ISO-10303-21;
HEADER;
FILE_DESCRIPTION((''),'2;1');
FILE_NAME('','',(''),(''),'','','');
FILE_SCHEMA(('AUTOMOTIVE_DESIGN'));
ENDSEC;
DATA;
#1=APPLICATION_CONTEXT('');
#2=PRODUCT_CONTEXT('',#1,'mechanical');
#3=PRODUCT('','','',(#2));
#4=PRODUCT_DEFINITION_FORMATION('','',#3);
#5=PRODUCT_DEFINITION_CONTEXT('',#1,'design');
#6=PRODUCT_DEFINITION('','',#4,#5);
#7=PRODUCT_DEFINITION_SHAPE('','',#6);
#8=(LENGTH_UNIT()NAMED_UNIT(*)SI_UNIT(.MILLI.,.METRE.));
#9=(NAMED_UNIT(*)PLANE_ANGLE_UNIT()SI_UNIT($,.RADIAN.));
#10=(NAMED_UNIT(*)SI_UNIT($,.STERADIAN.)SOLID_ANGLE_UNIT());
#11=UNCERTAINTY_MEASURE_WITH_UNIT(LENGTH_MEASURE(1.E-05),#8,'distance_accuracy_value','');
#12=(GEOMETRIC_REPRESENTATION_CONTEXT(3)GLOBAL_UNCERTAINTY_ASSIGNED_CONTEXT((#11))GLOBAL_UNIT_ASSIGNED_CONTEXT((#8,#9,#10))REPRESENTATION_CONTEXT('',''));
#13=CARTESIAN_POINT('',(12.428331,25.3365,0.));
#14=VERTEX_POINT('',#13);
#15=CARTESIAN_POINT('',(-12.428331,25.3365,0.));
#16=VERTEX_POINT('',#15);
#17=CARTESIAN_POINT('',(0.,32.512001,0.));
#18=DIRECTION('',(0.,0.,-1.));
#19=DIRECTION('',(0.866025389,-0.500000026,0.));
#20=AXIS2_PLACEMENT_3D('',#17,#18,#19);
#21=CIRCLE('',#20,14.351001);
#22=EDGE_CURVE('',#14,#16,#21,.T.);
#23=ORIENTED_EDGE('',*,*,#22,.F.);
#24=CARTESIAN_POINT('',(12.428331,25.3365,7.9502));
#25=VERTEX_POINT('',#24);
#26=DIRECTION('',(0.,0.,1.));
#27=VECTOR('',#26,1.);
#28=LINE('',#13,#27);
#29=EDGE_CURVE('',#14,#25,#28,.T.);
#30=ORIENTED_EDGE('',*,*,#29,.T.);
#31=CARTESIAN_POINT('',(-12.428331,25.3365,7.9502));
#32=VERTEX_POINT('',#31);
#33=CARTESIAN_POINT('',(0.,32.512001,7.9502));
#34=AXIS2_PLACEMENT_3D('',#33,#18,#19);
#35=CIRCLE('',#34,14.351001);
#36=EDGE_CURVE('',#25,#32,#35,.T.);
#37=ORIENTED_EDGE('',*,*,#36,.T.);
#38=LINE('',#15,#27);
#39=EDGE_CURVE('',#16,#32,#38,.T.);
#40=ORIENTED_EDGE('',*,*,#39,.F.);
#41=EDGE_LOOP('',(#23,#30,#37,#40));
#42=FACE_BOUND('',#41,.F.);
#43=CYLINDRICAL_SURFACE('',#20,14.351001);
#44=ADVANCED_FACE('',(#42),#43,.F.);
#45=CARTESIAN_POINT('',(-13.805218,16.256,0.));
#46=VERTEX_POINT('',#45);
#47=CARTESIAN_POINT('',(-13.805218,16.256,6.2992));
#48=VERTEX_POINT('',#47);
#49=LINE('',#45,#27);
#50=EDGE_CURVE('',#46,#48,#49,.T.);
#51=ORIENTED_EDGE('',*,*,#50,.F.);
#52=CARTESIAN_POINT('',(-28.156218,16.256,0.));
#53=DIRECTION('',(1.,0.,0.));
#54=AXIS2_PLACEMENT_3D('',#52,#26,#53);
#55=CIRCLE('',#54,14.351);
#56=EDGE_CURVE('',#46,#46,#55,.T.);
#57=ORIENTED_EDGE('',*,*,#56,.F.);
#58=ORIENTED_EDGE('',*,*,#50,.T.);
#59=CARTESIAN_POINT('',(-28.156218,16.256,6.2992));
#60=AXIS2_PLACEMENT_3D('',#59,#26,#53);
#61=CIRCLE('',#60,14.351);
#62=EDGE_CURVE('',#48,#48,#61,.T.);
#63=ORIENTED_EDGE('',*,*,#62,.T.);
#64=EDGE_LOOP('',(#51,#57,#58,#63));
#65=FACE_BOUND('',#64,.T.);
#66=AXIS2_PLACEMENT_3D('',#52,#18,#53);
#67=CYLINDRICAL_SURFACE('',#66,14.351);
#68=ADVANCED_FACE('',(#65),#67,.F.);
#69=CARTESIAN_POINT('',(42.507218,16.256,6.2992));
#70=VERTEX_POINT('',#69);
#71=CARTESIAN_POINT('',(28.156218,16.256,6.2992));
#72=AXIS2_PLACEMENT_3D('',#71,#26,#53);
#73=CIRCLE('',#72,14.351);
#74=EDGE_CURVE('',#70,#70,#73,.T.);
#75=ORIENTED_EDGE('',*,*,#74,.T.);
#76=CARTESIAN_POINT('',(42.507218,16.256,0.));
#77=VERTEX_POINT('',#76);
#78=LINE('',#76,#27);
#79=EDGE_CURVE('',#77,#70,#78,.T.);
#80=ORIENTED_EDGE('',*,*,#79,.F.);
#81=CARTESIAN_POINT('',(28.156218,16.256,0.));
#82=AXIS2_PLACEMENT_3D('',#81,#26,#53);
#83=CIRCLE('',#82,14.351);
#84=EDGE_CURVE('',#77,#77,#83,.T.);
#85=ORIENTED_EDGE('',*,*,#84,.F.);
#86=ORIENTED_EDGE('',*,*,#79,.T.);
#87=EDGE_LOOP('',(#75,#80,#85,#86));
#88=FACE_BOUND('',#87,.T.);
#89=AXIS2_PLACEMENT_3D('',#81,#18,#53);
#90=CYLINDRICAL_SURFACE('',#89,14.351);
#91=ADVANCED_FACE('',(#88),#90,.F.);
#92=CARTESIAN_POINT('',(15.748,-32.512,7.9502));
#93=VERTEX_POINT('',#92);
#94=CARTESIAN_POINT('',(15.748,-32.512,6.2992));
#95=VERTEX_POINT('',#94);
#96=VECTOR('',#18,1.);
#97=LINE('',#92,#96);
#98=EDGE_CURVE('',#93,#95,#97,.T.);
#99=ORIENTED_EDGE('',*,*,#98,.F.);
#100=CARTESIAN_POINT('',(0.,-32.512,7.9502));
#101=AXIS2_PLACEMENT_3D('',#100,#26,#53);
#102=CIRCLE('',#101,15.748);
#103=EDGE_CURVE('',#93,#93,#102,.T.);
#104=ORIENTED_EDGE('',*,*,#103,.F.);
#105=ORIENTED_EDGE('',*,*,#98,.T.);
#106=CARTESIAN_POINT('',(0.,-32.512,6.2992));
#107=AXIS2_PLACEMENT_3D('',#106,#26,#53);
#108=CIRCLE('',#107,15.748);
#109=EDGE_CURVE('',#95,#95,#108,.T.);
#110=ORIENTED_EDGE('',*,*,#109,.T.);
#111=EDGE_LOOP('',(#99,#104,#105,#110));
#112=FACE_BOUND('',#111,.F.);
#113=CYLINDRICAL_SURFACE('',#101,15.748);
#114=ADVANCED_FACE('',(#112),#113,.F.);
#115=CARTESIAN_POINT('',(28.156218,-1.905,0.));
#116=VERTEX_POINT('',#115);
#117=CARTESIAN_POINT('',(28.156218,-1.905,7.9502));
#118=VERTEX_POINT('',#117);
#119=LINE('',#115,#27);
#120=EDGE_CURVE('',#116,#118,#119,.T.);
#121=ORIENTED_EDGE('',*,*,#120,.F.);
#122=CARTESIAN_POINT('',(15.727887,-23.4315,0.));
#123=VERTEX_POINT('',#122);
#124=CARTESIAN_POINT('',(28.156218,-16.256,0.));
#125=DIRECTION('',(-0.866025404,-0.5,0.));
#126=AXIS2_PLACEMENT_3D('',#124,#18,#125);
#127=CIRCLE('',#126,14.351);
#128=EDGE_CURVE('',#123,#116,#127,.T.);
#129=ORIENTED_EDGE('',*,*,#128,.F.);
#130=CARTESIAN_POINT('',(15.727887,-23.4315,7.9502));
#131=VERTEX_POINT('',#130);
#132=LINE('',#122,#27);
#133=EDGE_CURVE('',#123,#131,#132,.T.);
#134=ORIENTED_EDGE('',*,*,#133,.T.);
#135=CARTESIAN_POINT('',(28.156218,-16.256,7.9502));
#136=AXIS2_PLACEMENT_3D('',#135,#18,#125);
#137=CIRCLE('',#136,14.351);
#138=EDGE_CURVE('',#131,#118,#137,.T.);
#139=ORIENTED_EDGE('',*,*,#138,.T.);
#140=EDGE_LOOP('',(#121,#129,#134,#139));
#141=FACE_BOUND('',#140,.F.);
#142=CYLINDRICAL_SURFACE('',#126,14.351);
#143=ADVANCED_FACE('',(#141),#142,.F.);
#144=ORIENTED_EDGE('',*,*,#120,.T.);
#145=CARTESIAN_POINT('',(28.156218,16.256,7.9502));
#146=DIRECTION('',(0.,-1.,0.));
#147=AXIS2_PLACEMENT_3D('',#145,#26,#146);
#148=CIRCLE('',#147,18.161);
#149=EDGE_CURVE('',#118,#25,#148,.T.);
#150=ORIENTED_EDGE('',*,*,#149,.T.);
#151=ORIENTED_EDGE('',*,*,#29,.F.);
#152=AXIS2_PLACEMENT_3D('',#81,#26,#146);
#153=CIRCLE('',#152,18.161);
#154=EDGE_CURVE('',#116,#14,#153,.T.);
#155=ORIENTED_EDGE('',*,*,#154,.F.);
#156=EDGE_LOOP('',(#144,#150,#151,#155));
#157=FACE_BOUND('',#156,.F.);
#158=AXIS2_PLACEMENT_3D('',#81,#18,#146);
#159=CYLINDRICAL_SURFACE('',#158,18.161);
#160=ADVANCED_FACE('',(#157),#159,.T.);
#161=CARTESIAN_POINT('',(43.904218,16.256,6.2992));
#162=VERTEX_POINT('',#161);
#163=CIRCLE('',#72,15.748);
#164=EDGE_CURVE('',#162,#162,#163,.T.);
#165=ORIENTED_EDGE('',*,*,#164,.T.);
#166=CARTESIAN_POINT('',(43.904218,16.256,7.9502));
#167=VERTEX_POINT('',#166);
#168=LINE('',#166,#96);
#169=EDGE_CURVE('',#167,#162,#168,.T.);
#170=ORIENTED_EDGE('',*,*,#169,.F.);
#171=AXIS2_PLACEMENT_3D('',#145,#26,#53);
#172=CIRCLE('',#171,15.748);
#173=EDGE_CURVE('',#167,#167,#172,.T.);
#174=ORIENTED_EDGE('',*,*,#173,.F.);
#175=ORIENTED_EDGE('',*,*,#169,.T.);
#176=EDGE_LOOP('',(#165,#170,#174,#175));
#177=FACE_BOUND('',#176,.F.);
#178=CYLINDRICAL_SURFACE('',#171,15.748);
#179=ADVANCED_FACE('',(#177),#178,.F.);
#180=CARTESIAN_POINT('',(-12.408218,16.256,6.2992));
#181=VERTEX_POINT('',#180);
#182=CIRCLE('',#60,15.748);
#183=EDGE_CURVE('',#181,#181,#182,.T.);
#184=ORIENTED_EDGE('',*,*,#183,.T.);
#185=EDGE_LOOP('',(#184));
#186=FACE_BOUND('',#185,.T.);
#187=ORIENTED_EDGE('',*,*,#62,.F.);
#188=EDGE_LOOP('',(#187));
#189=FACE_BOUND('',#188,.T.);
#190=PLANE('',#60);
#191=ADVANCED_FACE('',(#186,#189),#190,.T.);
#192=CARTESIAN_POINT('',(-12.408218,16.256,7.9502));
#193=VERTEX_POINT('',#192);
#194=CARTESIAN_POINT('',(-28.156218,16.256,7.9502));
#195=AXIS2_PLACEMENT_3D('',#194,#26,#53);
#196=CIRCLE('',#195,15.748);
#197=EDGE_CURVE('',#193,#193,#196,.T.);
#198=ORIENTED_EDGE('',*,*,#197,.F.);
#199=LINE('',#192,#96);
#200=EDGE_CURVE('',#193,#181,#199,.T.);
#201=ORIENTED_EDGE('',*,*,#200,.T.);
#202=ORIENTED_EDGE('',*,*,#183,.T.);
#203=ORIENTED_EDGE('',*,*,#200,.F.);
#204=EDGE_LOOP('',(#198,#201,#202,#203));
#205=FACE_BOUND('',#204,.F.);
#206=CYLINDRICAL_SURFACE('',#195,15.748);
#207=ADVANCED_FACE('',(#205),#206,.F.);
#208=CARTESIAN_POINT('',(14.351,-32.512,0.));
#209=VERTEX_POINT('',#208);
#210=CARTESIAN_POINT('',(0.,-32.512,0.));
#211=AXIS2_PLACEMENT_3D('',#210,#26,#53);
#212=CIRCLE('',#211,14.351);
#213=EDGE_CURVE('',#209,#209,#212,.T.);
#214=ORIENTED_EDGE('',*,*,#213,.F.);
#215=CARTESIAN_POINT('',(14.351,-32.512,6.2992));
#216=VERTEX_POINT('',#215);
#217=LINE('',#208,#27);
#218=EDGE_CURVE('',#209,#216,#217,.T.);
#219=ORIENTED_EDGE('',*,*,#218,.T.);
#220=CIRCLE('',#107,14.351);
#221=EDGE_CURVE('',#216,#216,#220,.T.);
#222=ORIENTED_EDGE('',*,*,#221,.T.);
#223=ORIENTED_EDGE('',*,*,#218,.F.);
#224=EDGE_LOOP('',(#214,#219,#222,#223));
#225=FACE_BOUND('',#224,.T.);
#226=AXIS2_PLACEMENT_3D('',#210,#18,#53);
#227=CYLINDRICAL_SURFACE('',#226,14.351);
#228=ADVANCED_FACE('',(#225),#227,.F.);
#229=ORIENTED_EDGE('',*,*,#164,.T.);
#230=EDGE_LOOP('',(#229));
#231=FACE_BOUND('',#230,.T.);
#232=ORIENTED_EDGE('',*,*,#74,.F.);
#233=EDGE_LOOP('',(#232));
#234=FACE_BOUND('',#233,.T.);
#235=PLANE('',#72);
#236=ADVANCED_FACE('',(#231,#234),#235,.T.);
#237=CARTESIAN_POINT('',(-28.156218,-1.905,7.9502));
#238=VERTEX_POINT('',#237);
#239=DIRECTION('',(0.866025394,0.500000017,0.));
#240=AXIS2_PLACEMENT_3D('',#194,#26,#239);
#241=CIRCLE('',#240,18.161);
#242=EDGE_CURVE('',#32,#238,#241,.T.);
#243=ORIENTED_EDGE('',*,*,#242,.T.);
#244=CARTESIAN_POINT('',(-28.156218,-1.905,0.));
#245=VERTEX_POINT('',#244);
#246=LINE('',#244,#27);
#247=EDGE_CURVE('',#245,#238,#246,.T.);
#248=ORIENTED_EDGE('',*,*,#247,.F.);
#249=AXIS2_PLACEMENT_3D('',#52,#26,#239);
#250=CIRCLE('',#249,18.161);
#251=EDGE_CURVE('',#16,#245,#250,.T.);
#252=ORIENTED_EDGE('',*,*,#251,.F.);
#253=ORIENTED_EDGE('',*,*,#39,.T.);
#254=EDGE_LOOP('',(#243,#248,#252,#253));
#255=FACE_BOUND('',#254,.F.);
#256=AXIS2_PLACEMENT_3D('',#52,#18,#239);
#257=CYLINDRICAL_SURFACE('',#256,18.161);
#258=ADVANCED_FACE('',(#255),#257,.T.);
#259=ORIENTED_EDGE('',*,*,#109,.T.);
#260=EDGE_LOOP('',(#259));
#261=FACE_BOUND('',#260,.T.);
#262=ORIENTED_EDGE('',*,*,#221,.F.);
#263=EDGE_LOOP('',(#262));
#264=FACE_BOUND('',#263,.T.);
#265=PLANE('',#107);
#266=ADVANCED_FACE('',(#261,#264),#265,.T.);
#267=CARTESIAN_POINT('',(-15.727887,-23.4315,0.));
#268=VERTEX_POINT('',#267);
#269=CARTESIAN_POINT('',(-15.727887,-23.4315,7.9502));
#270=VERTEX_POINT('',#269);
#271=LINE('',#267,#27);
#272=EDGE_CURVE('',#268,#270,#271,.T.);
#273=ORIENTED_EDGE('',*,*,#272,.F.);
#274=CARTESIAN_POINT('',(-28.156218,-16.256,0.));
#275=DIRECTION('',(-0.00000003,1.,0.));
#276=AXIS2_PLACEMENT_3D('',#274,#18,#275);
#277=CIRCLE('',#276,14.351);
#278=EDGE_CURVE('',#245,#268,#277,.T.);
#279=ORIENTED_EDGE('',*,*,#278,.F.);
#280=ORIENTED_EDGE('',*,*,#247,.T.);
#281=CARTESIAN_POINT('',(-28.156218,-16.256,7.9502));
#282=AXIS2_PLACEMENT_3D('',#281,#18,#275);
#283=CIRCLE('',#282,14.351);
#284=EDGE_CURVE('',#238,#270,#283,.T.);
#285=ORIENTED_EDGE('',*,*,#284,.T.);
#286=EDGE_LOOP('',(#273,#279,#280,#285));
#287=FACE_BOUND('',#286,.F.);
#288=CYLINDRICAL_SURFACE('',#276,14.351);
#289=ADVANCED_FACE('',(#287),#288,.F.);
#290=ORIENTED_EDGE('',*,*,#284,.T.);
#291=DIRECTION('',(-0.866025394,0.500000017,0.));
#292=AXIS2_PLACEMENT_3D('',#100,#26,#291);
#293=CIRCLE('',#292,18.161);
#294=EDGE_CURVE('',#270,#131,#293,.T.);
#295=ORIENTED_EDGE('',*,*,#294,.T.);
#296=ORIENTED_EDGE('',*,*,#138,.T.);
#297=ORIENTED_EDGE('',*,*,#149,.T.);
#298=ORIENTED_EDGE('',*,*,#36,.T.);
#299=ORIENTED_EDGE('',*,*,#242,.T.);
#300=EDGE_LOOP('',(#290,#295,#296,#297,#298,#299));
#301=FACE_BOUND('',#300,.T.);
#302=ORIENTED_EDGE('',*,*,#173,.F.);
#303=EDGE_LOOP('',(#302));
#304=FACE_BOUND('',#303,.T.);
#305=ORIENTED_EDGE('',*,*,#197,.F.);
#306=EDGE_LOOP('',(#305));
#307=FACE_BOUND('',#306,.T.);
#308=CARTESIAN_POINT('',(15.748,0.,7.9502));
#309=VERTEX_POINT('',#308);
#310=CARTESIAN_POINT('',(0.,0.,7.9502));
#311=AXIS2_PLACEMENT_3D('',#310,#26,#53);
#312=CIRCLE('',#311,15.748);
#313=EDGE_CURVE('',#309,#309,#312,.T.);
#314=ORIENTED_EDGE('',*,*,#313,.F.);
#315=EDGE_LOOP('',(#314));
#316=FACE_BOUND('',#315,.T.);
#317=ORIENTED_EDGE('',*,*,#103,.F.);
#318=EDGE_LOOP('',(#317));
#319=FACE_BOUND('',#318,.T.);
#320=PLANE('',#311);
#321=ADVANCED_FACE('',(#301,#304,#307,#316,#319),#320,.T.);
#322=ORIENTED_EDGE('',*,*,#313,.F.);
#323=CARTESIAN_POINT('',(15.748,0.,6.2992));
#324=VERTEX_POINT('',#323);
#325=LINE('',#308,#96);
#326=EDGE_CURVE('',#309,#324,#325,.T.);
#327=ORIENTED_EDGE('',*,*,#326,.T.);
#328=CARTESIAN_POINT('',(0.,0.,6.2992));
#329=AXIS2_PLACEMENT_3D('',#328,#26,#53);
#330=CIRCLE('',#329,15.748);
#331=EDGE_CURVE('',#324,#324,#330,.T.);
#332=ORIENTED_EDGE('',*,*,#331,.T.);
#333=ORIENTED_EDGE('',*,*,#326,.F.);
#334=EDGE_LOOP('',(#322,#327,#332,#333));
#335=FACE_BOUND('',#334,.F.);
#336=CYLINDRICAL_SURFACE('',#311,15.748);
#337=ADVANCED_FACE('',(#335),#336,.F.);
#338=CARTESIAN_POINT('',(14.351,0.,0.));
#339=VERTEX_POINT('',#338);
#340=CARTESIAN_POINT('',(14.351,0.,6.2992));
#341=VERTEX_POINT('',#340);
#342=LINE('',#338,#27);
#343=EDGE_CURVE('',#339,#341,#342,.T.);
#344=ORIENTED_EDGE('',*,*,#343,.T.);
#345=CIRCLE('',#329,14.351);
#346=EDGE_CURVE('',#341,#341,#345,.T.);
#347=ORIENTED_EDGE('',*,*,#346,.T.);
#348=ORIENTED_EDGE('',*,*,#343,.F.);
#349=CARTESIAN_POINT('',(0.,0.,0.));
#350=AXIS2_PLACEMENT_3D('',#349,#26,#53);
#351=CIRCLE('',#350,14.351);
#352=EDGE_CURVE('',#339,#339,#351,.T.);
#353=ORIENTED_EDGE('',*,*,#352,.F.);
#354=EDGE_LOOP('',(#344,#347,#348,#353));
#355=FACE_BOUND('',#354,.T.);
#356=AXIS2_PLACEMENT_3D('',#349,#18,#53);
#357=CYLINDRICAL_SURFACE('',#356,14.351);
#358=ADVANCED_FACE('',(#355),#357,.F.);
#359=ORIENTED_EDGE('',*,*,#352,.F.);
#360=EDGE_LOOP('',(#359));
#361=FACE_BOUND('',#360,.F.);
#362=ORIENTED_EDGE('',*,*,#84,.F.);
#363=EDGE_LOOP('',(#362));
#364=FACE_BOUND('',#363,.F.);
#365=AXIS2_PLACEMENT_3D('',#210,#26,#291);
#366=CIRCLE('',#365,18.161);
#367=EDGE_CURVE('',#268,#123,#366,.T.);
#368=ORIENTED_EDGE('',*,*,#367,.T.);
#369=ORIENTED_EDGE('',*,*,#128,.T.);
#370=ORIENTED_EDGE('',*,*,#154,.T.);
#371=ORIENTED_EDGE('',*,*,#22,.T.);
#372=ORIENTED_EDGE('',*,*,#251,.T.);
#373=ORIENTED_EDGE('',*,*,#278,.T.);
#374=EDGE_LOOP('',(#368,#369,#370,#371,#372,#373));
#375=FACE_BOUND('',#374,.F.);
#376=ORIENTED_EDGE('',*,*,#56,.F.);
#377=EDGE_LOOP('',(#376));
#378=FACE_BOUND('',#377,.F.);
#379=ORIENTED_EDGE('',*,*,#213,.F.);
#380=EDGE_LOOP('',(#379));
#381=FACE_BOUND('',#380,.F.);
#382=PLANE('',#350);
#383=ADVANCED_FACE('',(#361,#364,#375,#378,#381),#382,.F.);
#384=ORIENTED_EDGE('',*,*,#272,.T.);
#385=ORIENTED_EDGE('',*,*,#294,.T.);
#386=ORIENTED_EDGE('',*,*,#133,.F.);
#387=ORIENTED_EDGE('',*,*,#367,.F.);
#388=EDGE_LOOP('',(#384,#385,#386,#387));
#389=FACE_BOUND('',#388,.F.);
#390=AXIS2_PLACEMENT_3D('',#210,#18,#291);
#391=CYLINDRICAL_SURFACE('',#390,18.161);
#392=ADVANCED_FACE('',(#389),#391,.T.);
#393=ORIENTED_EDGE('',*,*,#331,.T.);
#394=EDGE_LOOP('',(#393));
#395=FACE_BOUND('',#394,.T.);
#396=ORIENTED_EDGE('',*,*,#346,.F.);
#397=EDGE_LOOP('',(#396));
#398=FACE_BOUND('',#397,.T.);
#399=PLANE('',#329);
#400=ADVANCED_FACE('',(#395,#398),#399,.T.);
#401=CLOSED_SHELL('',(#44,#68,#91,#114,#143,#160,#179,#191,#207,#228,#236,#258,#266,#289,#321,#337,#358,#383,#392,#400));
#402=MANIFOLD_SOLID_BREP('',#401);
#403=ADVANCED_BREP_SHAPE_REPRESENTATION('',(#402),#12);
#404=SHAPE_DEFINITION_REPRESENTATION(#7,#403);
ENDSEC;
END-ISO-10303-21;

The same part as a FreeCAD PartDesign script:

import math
import FreeCAD as App
import Part
import Sketcher

V = App.Vector
Q = App.Units.Quantity

doc = App.newDocument("Part")
body = doc.addObject("PartDesign::Body", "Body")

# Sketch on XY plane
sketch1 = body.newObject("Sketcher::SketchObject", "Sketch")
sketch1.AttachmentSupport = (doc.getObject("XY_Plane"), [""])
sketch1.MapMode = "FlatFace"
sketch1.addGeometry([
    Part.ArcOfCircle(Part.Circle(V(0, 32.512001, 0), V(0, 0, 1), 14.351001), math.radians(-149.999998), math.radians(-30.000002)),  # 0
    Part.ArcOfCircle(Part.Circle(V(-28.156218, 16.256, 0), V(0, 0, 1), 18.161), math.radians(30.000001), math.radians(270)),  # 1
    Part.ArcOfCircle(Part.Circle(V(-28.156218, -16.256, 0), V(0, 0, 1), 14.351), math.radians(-30), math.radians(90.000002)),  # 2
    Part.ArcOfCircle(Part.Circle(V(0, -32.512, 0), V(0, 0, 1), 18.161), math.radians(149.999999), math.radians(390.000001)),  # 3
    Part.ArcOfCircle(Part.Circle(V(28.156218, -16.256, 0), V(0, 0, 1), 14.351), math.radians(89.999998), math.radians(210)),  # 4
    Part.ArcOfCircle(Part.Circle(V(28.156218, 16.256, 0), V(0, 0, 1), 18.161), math.radians(-90), math.radians(149.999999)),  # 5
    Part.Circle(V(0, -32.512, 0), V(0, 0, 1), 14.351),  # 6
    Part.Circle(V(0, 0, 0), V(0, 0, 1), 14.351),  # 7
    Part.Circle(V(-28.156218, 16.256, 0), V(0, 0, 1), 14.351),  # 8
    Part.Circle(V(28.156218, 16.256, 0), V(0, 0, 1), 14.351),  # 9
], False)
sketch1.addConstraint([
    Sketcher.Constraint("Tangent", 0, 1, 1, 1),
    Sketcher.Constraint("Tangent", 1, 2, 2, 2),
    Sketcher.Constraint("Tangent", 2, 1, 3, 1),
    Sketcher.Constraint("Tangent", 3, 2, 4, 2),
    Sketcher.Constraint("Tangent", 4, 1, 5, 1),
    Sketcher.Constraint("Tangent", 5, 2, 0, 2),
    Sketcher.Constraint("Coincident", 7, 3, -1, 1),
    Sketcher.Constraint("Coincident", 6, 3, 3, 3),
    Sketcher.Constraint("Coincident", 8, 3, 1, 3),
    Sketcher.Constraint("Coincident", 9, 3, 5, 3),
    Sketcher.Constraint("Equal", 0, 2),
    Sketcher.Constraint("Equal", 1, 3),
    Sketcher.Constraint("Equal", 2, 4),
    Sketcher.Constraint("Equal", 3, 5),
    Sketcher.Constraint("Equal", 4, 6),
    Sketcher.Constraint("Equal", 6, 7),
    Sketcher.Constraint("Equal", 7, 8),
    Sketcher.Constraint("Equal", 8, 9),
    Sketcher.Constraint("Symmetric", 0, 3, 3, 3, -1, 1),
    Sketcher.Constraint("Symmetric", 2, 3, 4, 3, -2),
    Sketcher.Constraint("Vertical", 1, 3, 2, 3),
    Sketcher.Constraint("Diameter", 6, Q("1.13 in")),
    Sketcher.Constraint("Radius", 1, Q("0.715 in")),
    Sketcher.Constraint("DistanceY", -1, 1, 0, 3, Q("1.28 in")),
])
pad1 = body.newObject("PartDesign::Pad", "Pad")
pad1.Profile = sketch1
pad1.Length = Q("0.313 in")

# Sketch on XY plane
sketch2 = body.newObject("Sketcher::SketchObject", "Sketch001")
sketch2.AttachmentSupport = (doc.getObject("XY_Plane"), [""])
sketch2.MapMode = "FlatFace"
sketch2.AttachmentOffset = App.Placement(V(0, 0, 0.313 * 25.4), App.Rotation())
sketch2.addGeometry([
    Part.Circle(V(-28.156218, 16.256, 0), V(0, 0, 1), 15.748),
    Part.Circle(V(-28.156218, 16.256, 0), V(0, 0, 1), 14.351),
], False)
sketch2.addConstraint([
    Sketcher.Constraint("Coincident", 1, 3, 0, 3),
    Sketcher.Constraint("Diameter", 0, Q("1.24 in")),
    Sketcher.Constraint("Diameter", 1, Q("1.13 in")),
    Sketcher.Constraint("DistanceY", -1, 1, 0, 3, Q("0.64 in")),
    Sketcher.Constraint("DistanceX", 0, 3, -1, 1, 28.156218),
])
pocket1 = body.newObject("PartDesign::Pocket", "Pocket")
pocket1.Profile = sketch2
pocket1.Length = Q("0.065 in")

# Sketch on XY plane
sketch3 = body.newObject("Sketcher::SketchObject", "Sketch002")
sketch3.AttachmentSupport = (doc.getObject("XY_Plane"), [""])
sketch3.MapMode = "FlatFace"
sketch3.AttachmentOffset = App.Placement(V(0, 0, 0.313 * 25.4), App.Rotation())
sketch3.addGeometry([
    Part.Circle(V(28.156218, 16.256, 0), V(0, 0, 1), 15.748),
    Part.Circle(V(28.156218, 16.256, 0), V(0, 0, 1), 14.351),
], False)
sketch3.addConstraint([
    Sketcher.Constraint("Coincident", 1, 3, 0, 3),
    Sketcher.Constraint("Diameter", 0, Q("1.24 in")),
    Sketcher.Constraint("Diameter", 1, Q("1.13 in")),
    Sketcher.Constraint("DistanceY", -1, 1, 0, 3, Q("0.64 in")),
    Sketcher.Constraint("DistanceX", -1, 1, 0, 3, 28.156218),
])
pocket2 = body.newObject("PartDesign::Pocket", "Pocket001")
pocket2.Profile = sketch3
pocket2.Length = Q("0.065 in")

# Sketch on XY plane
sketch4 = body.newObject("Sketcher::SketchObject", "Sketch003")
sketch4.AttachmentSupport = (doc.getObject("XY_Plane"), [""])
sketch4.MapMode = "FlatFace"
sketch4.AttachmentOffset = App.Placement(V(0, 0, 0.313 * 25.4), App.Rotation())
sketch4.addGeometry([
    Part.Circle(V(0, -32.512, 0), V(0, 0, 1), 15.748),
    Part.Circle(V(0, -32.512, 0), V(0, 0, 1), 14.351),
], False)
sketch4.addConstraint([
    Sketcher.Constraint("Coincident", 1, 3, 0, 3),
    Sketcher.Constraint("PointOnObject", 0, 3, -2),
    Sketcher.Constraint("Diameter", 0, Q("1.24 in")),
    Sketcher.Constraint("Diameter", 1, Q("1.13 in")),
    Sketcher.Constraint("DistanceY", 0, 3, -1, 1, Q("1.28 in")),
])
pocket3 = body.newObject("PartDesign::Pocket", "Pocket002")
pocket3.Profile = sketch4
pocket3.Length = Q("0.065 in")

# Sketch on XY plane
sketch5 = body.newObject("Sketcher::SketchObject", "Sketch004")
sketch5.AttachmentSupport = (doc.getObject("XY_Plane"), [""])
sketch5.MapMode = "FlatFace"
sketch5.AttachmentOffset = App.Placement(V(0, 0, 0.313 * 25.4), App.Rotation())
sketch5.addGeometry([
    Part.Circle(V(0, 0, 0), V(0, 0, 1), 15.748),
    Part.Circle(V(0, 0, 0), V(0, 0, 1), 14.351),
], False)
sketch5.addConstraint([
    Sketcher.Constraint("Coincident", 0, 3, -1, 1),
    Sketcher.Constraint("Coincident", 1, 3, -1, 1),
    Sketcher.Constraint("Diameter", 0, Q("1.24 in")),
    Sketcher.Constraint("Diameter", 1, Q("1.13 in")),
])
pocket4 = body.newObject("PartDesign::Pocket", "Pocket003")
pocket4.Profile = sketch5
pocket4.Length = Q("0.065 in")

doc.recompute()
